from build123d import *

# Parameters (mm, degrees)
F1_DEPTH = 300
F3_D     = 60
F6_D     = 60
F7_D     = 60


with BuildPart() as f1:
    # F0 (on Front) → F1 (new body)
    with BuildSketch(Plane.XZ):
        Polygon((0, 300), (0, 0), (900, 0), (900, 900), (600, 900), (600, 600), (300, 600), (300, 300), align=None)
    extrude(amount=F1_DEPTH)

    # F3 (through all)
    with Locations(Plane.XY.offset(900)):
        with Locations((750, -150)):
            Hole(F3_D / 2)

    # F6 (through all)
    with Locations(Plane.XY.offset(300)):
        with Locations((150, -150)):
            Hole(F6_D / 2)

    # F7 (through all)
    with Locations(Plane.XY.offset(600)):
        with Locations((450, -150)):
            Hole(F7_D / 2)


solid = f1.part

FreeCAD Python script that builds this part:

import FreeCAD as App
import Part
import Sketcher

V = App.Vector

doc = App.newDocument("Part")
body = doc.addObject("PartDesign::Body", "Body")

# Sketch on XZ plane
sketch1 = doc.addObject("Sketcher::SketchObject", "Sketch")
body.addObject(sketch1)
sketch1.AttachmentSupport = (doc.XZ_Plane, [""])
sketch1.MapMode = "FlatFace"
sketch1.addGeometry(Part.LineSegment(V(0, 300, 0), V(0, 0, 0)), False)
sketch1.addGeometry(Part.LineSegment(V(0, 0, 0), V(900, 0, 0)), False)
sketch1.addGeometry(Part.LineSegment(V(900, 0, 0), V(900, 900, 0)), False)
sketch1.addGeometry(Part.LineSegment(V(900, 900, 0), V(600, 900, 0)), False)
sketch1.addGeometry(Part.LineSegment(V(600, 900, 0), V(600, 600, 0)), False)
sketch1.addGeometry(Part.LineSegment(V(600, 600, 0), V(300, 600, 0)), False)
sketch1.addGeometry(Part.LineSegment(V(300, 600, 0), V(300, 300, 0)), False)
sketch1.addGeometry(Part.LineSegment(V(300, 300, 0), V(0, 300, 0)), False)
sketch1.addConstraint(Sketcher.Constraint("Coincident", 0, 2, 1, 1))
sketch1.addConstraint(Sketcher.Constraint("Coincident", 1, 2, 2, 1))
sketch1.addConstraint(Sketcher.Constraint("Coincident", 2, 2, 3, 1))
sketch1.addConstraint(Sketcher.Constraint("Coincident", 3, 2, 4, 1))
sketch1.addConstraint(Sketcher.Constraint("Coincident", 4, 2, 5, 1))
sketch1.addConstraint(Sketcher.Constraint("Coincident", 5, 2, 6, 1))
sketch1.addConstraint(Sketcher.Constraint("Coincident", 6, 2, 7, 1))
sketch1.addConstraint(Sketcher.Constraint("Coincident", 7, 2, 0, 1))
sketch1.addConstraint(Sketcher.Constraint("Vertical", 0))
sketch1.addConstraint(Sketcher.Constraint("Horizontal", 1))
sketch1.addConstraint(Sketcher.Constraint("Vertical", 2))
sketch1.addConstraint(Sketcher.Constraint("Horizontal", 3))
sketch1.addConstraint(Sketcher.Constraint("Vertical", 4))
sketch1.addConstraint(Sketcher.Constraint("Horizontal", 5))
sketch1.addConstraint(Sketcher.Constraint("Vertical", 6))
sketch1.addConstraint(Sketcher.Constraint("Horizontal", 7))
sketch1.addConstraint(Sketcher.Constraint("Coincident", 0, 2, -1, 1))
sketch1.addConstraint(Sketcher.Constraint("Equal", 3, 5))
sketch1.addConstraint(Sketcher.Constraint("Equal", 5, 7))
sketch1.addConstraint(Sketcher.Constraint("Equal", 7, 0))
sketch1.addConstraint(Sketcher.Constraint("Equal", 1, 2))
sketch1.addConstraint(Sketcher.Constraint("Equal", 0, 4))
sketch1.addConstraint(Sketcher.Constraint("DistanceX", 1, 1, 1, 2, 900.0))
pad1 = doc.addObject("PartDesign::Pad", "Pad")
body.addObject(pad1)
pad1.Profile = sketch1
pad1.Length = 300

# Sketch on XY plane
sketch2 = doc.addObject("Sketcher::SketchObject", "Sketch001")
body.addObject(sketch2)
sketch2.AttachmentSupport = (doc.XY_Plane, [""])
sketch2.MapMode = "FlatFace"
sketch2.AttachmentOffset = App.Placement(V(0, 0, 900), App.Rotation())
sketch2.addGeometry(Part.Circle(V(750, -150, 0), V(0, 0, 1), 30), False)
sketch2.addConstraint(Sketcher.Constraint("Diameter", 0, 60.0))
sketch2.addConstraint(Sketcher.Constraint("DistanceX", -1, 1, 0, 3, 750.0))
sketch2.addConstraint(Sketcher.Constraint("DistanceY", 0, 3, -1, 1, 150.0))
doc.recompute()
hole = doc.addObject("PartDesign::Hole", "Hole")
body.addObject(hole)
hole.Profile = sketch2
hole.ThreadType = "None"
hole.Diameter = 60
hole.DepthType = "ThroughAll"

# Sketch on XY plane
sketch3 = doc.addObject("Sketcher::SketchObject", "Sketch002")
body.addObject(sketch3)
sketch3.AttachmentSupport = (doc.XY_Plane, [""])
sketch3.MapMode = "FlatFace"
sketch3.AttachmentOffset = App.Placement(V(0, 0, 300), App.Rotation())
sketch3.addGeometry(Part.Circle(V(150, -150, 0), V(0, 0, 1), 30), False)
sketch3.addConstraint(Sketcher.Constraint("Diameter", 0, 60.0))
sketch3.addConstraint(Sketcher.Constraint("DistanceX", -1, 1, 0, 3, 150.0))
sketch3.addConstraint(Sketcher.Constraint("DistanceY", 0, 3, -1, 1, 150.0))
doc.recompute()
hole2 = doc.addObject("PartDesign::Hole", "Hole001")
body.addObject(hole2)
hole2.Profile = sketch3
hole2.ThreadType = "None"
hole2.Diameter = 60
hole2.DepthType = "ThroughAll"

# Sketch on XY plane
sketch4 = doc.addObject("Sketcher::SketchObject", "Sketch003")
body.addObject(sketch4)
sketch4.AttachmentSupport = (doc.XY_Plane, [""])
sketch4.MapMode = "FlatFace"
sketch4.AttachmentOffset = App.Placement(V(0, 0, 600), App.Rotation())
sketch4.addGeometry(Part.Circle(V(450, -150, 0), V(0, 0, 1), 30), False)
sketch4.addConstraint(Sketcher.Constraint("Diameter", 0, 60.0))
sketch4.addConstraint(Sketcher.Constraint("DistanceX", -1, 1, 0, 3, 450.0))
sketch4.addConstraint(Sketcher.Constraint("DistanceY", 0, 3, -1, 1, 150.0))
doc.recompute()
hole3 = doc.addObject("PartDesign::Hole", "Hole002")
body.addObject(hole3)
hole3.Profile = sketch4
hole3.ThreadType = "None"
hole3.Diameter = 60
hole3.DepthType = "ThroughAll"

doc.recompute()
